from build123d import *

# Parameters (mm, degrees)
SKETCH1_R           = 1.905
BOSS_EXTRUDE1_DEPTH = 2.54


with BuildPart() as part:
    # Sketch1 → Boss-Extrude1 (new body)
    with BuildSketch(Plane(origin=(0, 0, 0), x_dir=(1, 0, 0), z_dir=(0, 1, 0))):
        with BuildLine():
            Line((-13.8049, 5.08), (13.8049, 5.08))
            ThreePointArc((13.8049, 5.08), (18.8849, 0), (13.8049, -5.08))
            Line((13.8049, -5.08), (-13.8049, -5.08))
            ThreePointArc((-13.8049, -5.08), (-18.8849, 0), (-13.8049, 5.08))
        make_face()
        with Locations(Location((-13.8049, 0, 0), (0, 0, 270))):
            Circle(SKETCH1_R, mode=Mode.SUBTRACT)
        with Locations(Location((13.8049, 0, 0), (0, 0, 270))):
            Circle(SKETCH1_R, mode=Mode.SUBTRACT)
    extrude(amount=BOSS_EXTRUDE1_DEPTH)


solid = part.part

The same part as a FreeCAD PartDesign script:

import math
import FreeCAD as App
import Part
import Sketcher
from FreeCAD import Vector
Q = App.Units.Quantity

doc = App.newDocument("Part")
params = doc.addObject("Spreadsheet::Sheet", "Params")
for row, (alias, value) in enumerate([
    ("sketch1_radius", "0.2 in"),
    ("sketch1_diameter", "0.15 in"),
    ("sketch1_width", "1.087 in"),
    ("pad1_length", "0.1 in"),
], start=1):
    params.set(f"A{row}", alias)
    params.set(f"B{row}", "=" + value)
    params.setAlias(f"B{row}", alias)

body = doc.addObject("PartDesign::Body", "Body")

# Sketch on XZ plane
sketch1 = body.newObject("Sketcher::SketchObject", "Sketch")
sketch1.AttachmentSupport = (doc.getObject("XZ_Plane"), [""])
sketch1.MapMode = "FlatFace"
sketch1.addGeometry([
    Part.LineSegment(Vector(13.8049, -5.08, 0), Vector(-13.8049, -5.08, 0)),  # 0
    Part.ArcOfCircle(Part.Circle(Vector(-13.8049, 0, 0), Vector(0, 0, 1), 5.08), math.radians(90), math.radians(270)),  # 1
    Part.LineSegment(Vector(-13.8049, 5.08, 0), Vector(13.8049, 5.08, 0)),  # 2
    Part.ArcOfCircle(Part.Circle(Vector(13.8049, 0, 0), Vector(0, 0, 1), 5.08), math.radians(-90), math.radians(90)),  # 3
    Part.Circle(Vector(13.8049, 0, 0), Vector(0, 0, 1), 1.905),  # 4
    Part.Circle(Vector(-13.8049, 0, 0), Vector(0, 0, 1), 1.905),  # 5
], False)
sketch1.addConstraint([
    Sketcher.Constraint("Tangent", 0, 2, 1, 2),
    Sketcher.Constraint("Tangent", 1, 1, 2, 1),
    Sketcher.Constraint("Tangent", 2, 2, 3, 2),
    Sketcher.Constraint("Tangent", 3, 1, 0, 1),
    Sketcher.Constraint("Horizontal", 0),
    Sketcher.Constraint("Horizontal", 2),
    Sketcher.Constraint("Coincident", 4, 3, 3, 3),
    Sketcher.Constraint("Coincident", 5, 3, 1, 3),
    Sketcher.Constraint("Equal", 4, 5),
    Sketcher.Constraint("Symmetric", 1, 3, 3, 3, -1, 1),
    Sketcher.Constraint("Radius", 1, Q("0.2 in")),
    Sketcher.Constraint("Diameter", 4, Q("0.15 in")),
    Sketcher.Constraint("DistanceX", 0, 2, 0, 1, Q("1.087 in")),
])
sketch1.setExpression("Constraints[10]", "Params.sketch1_radius")
sketch1.setExpression("Constraints[11]", "Params.sketch1_diameter")
sketch1.setExpression("Constraints[12]", "Params.sketch1_width")
pad1 = body.newObject("PartDesign::Pad", "Pad")
pad1.Profile = sketch1
pad1.setExpression("Length", "Params.pad1_length")
pad1.Reversed = True

doc.recompute()
